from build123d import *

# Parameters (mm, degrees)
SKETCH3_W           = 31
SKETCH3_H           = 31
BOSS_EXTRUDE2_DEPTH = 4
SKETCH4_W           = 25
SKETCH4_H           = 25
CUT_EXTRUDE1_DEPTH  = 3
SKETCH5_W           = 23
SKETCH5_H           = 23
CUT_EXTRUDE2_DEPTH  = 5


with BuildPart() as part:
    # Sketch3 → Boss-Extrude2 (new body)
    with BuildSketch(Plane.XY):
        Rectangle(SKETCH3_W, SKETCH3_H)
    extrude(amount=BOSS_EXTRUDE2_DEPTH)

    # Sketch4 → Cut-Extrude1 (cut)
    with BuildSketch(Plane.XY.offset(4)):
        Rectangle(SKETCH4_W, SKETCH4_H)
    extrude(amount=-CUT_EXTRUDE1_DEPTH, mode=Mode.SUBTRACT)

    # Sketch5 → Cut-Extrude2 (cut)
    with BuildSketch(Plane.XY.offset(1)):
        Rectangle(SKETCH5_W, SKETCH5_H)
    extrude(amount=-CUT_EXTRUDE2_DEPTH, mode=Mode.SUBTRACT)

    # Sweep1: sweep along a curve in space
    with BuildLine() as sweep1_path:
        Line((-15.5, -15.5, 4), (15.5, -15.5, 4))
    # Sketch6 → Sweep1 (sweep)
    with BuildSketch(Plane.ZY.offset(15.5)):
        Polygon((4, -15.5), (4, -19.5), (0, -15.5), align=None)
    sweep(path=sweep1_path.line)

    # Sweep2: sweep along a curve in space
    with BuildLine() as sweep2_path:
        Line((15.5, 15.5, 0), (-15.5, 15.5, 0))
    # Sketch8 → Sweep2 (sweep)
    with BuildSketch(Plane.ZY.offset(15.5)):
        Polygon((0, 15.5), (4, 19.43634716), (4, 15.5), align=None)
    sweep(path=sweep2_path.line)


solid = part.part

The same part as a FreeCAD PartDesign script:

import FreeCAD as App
import Part
import Sketcher

doc = App.newDocument("Part")
body = doc.addObject("PartDesign::Body", "Body")

# Sketch on XY plane
sketch1 = body.newObject("Sketcher::SketchObject", "Sketch")
sketch1.AttachmentSupport = (doc.getObject("XY_Plane"), [""])
sketch1.MapMode = "FlatFace"
sketch1.addGeometry([
    Part.LineSegment(App.Vector(-16, 16, 0), App.Vector(-16, -16, 0)),
    Part.LineSegment(App.Vector(-16, -16, 0), App.Vector(16, -16, 0)),
    Part.LineSegment(App.Vector(16, -16, 0), App.Vector(16, 16, 0)),
    Part.LineSegment(App.Vector(16, 16, 0), App.Vector(-16, 16, 0)),
], False)
sketch1.addConstraint([
    Sketcher.Constraint("Coincident", 0, 2, 1, 1),
    Sketcher.Constraint("Coincident", 1, 2, 2, 1),
    Sketcher.Constraint("Coincident", 2, 2, 3, 1),
    Sketcher.Constraint("Coincident", 3, 2, 0, 1),
    Sketcher.Constraint("Vertical", 0),
    Sketcher.Constraint("Horizontal", 1),
    Sketcher.Constraint("Vertical", 2),
    Sketcher.Constraint("Horizontal", 3),
    Sketcher.Constraint("Symmetric", 0, 2, 2, 2, -1, 1),
    Sketcher.Constraint("Equal", 3, 0),
    Sketcher.Constraint("DistanceX", 1, 1, 1, 2, 31.0),
])
pad1 = body.newObject("PartDesign::Pad", "Pad")
pad1.Profile = sketch1
pad1.Length = 4

# Sketch on XY plane
sketch2 = body.newObject("Sketcher::SketchObject", "Sketch001")
sketch2.AttachmentSupport = (doc.getObject("XY_Plane"), [""])
sketch2.MapMode = "FlatFace"
sketch2.AttachmentOffset = App.Placement(App.Vector(0, 0, 4), App.Rotation())
sketch2.addGeometry([
    Part.LineSegment(App.Vector(-12, 12, 0), App.Vector(-12, -12, 0)),
    Part.LineSegment(App.Vector(-12, -12, 0), App.Vector(12, -12, 0)),
    Part.LineSegment(App.Vector(12, -12, 0), App.Vector(12, 12, 0)),
    Part.LineSegment(App.Vector(12, 12, 0), App.Vector(-12, 12, 0)),
], False)
sketch2.addConstraint([
    Sketcher.Constraint("Coincident", 0, 2, 1, 1),
    Sketcher.Constraint("Coincident", 1, 2, 2, 1),
    Sketcher.Constraint("Coincident", 2, 2, 3, 1),
    Sketcher.Constraint("Coincident", 3, 2, 0, 1),
    Sketcher.Constraint("Vertical", 0),
    Sketcher.Constraint("Horizontal", 1),
    Sketcher.Constraint("Vertical", 2),
    Sketcher.Constraint("Horizontal", 3),
    Sketcher.Constraint("Symmetric", 0, 2, 2, 2, -1, 1),
    Sketcher.Constraint("Equal", 3, 0),
    Sketcher.Constraint("DistanceX", 1, 1, 1, 2, 25.0),
])
pocket1 = body.newObject("PartDesign::Pocket", "Pocket")
pocket1.Profile = sketch2
pocket1.Length = 3

# Sketch on XY plane
sketch3 = body.newObject("Sketcher::SketchObject", "Sketch002")
sketch3.AttachmentSupport = (doc.getObject("XY_Plane"), [""])
sketch3.MapMode = "FlatFace"
sketch3.AttachmentOffset = App.Placement(App.Vector(0, 0, 1), App.Rotation())
sketch3.addGeometry([
    Part.LineSegment(App.Vector(-12, 12, 0), App.Vector(-12, -12, 0)),
    Part.LineSegment(App.Vector(-12, -12, 0), App.Vector(12, -12, 0)),
    Part.LineSegment(App.Vector(12, -12, 0), App.Vector(12, 12, 0)),
    Part.LineSegment(App.Vector(12, 12, 0), App.Vector(-12, 12, 0)),
], False)
sketch3.addConstraint([
    Sketcher.Constraint("Coincident", 0, 2, 1, 1),
    Sketcher.Constraint("Coincident", 1, 2, 2, 1),
    Sketcher.Constraint("Coincident", 2, 2, 3, 1),
    Sketcher.Constraint("Coincident", 3, 2, 0, 1),
    Sketcher.Constraint("Vertical", 0),
    Sketcher.Constraint("Horizontal", 1),
    Sketcher.Constraint("Vertical", 2),
    Sketcher.Constraint("Horizontal", 3),
    Sketcher.Constraint("Symmetric", 0, 2, 2, 2, -1, 1),
    Sketcher.Constraint("Equal", 3, 0),
    Sketcher.Constraint("DistanceX", 1, 1, 1, 2, 23.0),
])
pocket2 = body.newObject("PartDesign::Pocket", "Pocket001")
pocket2.Profile = sketch3
pocket2.Length = 5

# Sketch on YZ plane
sketch4 = body.newObject("Sketcher::SketchObject", "Sketch003")
sketch4.AttachmentSupport = (doc.getObject("YZ_Plane"), [""])
sketch4.MapMode = "FlatFace"
sketch4.AttachmentOffset = App.Placement(App.Vector(0, 0, -15.5), App.Rotation())
sketch4.addGeometry([
    Part.LineSegment(App.Vector(-19.5, 4, 0), App.Vector(-15.5, 4, 0)),
    Part.LineSegment(App.Vector(-15.5, 4, 0), App.Vector(-15.5, 0, 0)),
    Part.LineSegment(App.Vector(-15.5, 0, 0), App.Vector(-19.5, 4, 0)),
], False)
sketch4.addConstraint([
    Sketcher.Constraint("Coincident", 0, 2, 1, 1),
    Sketcher.Constraint("Coincident", 1, 2, 2, 1),
    Sketcher.Constraint("Coincident", 2, 2, 0, 1),
    Sketcher.Constraint("Horizontal", 0),
    Sketcher.Constraint("Vertical", 1),
    Sketcher.Constraint("PointOnObject", 1, 2, -1),
    Sketcher.Constraint("Equal", 0, 1),
    Sketcher.Constraint("DistanceX", 0, 1, 0, 2, 4.0),
    Sketcher.Constraint("DistanceX", 0, 2, -1, 1, 15.5),
])

# Sketch on XY plane
sketch5 = body.newObject("Sketcher::SketchObject", "Sketch004")
sketch5.AttachmentSupport = (doc.getObject("XY_Plane"), [""])
sketch5.MapMode = "FlatFace"
sketch5.AttachmentOffset = App.Placement(App.Vector(0, 0, 4), App.Rotation())
sketch5.addGeometry(Part.LineSegment(App.Vector(-16, -16, 0), App.Vector(16, -16, 0)), False)
sketch5.addConstraint([
    Sketcher.Constraint("Horizontal", 0),
    Sketcher.Constraint("DistanceX", 0, 1, 0, 2, 31.0),
    Sketcher.Constraint("DistanceX", 0, 1, -1, 1, 15.5),
    Sketcher.Constraint("DistanceY", 0, 1, -1, 1, 15.5),
])
doc.recompute()

additivepipe = body.newObject("PartDesign::AdditivePipe", "AdditivePipe")
additivepipe.Profile = sketch4
additivepipe.Spine = (sketch5, ["Edge1"])

# Sketch on YZ plane
sketch6 = body.newObject("Sketcher::SketchObject", "Sketch005")
sketch6.AttachmentSupport = (doc.getObject("YZ_Plane"), [""])
sketch6.MapMode = "FlatFace"
sketch6.AttachmentOffset = App.Placement(App.Vector(0, 0, -15.5), App.Rotation())
sketch6.addGeometry([
    Part.LineSegment(App.Vector(19.4, 4, 0), App.Vector(15.5, 0, 0)),
    Part.LineSegment(App.Vector(15.5, 0, 0), App.Vector(15.5, 4, 0)),
    Part.LineSegment(App.Vector(15.5, 4, 0), App.Vector(19.4, 4, 0)),
], False)
sketch6.addConstraint([
    Sketcher.Constraint("Coincident", 0, 2, 1, 1),
    Sketcher.Constraint("Coincident", 1, 2, 2, 1),
    Sketcher.Constraint("Coincident", 2, 2, 0, 1),
    Sketcher.Constraint("Vertical", 1),
    Sketcher.Constraint("Horizontal", 2),
    Sketcher.Constraint("PointOnObject", 0, 2, -1),
    Sketcher.Constraint("DistanceY", 1, 1, 1, 2, 4.0),
    Sketcher.Constraint("DistanceX", -1, 1, 0, 2, 15.5),
    Sketcher.Constraint("DistanceX", 2, 1, 2, 2, 3.936347),
])

# Sketch on XY plane
sketch7 = body.newObject("Sketcher::SketchObject", "Sketch006")
sketch7.AttachmentSupport = (doc.getObject("XY_Plane"), [""])
sketch7.MapMode = "FlatFace"
sketch7.addGeometry(Part.LineSegment(App.Vector(16, 16, 0), App.Vector(-16, 16, 0)), False)
sketch7.addConstraint([
    Sketcher.Constraint("Horizontal", 0),
    Sketcher.Constraint("DistanceX", 0, 2, 0, 1, 31.0),
    Sketcher.Constraint("DistanceX", -1, 1, 0, 1, 15.5),
    Sketcher.Constraint("DistanceY", -1, 1, 0, 1, 15.5),
])
doc.recompute()

additivepipe2 = body.newObject("PartDesign::AdditivePipe", "AdditivePipe001")
additivepipe2.Profile = sketch6
additivepipe2.Spine = (sketch7, ["Edge1"])

doc.recompute()
